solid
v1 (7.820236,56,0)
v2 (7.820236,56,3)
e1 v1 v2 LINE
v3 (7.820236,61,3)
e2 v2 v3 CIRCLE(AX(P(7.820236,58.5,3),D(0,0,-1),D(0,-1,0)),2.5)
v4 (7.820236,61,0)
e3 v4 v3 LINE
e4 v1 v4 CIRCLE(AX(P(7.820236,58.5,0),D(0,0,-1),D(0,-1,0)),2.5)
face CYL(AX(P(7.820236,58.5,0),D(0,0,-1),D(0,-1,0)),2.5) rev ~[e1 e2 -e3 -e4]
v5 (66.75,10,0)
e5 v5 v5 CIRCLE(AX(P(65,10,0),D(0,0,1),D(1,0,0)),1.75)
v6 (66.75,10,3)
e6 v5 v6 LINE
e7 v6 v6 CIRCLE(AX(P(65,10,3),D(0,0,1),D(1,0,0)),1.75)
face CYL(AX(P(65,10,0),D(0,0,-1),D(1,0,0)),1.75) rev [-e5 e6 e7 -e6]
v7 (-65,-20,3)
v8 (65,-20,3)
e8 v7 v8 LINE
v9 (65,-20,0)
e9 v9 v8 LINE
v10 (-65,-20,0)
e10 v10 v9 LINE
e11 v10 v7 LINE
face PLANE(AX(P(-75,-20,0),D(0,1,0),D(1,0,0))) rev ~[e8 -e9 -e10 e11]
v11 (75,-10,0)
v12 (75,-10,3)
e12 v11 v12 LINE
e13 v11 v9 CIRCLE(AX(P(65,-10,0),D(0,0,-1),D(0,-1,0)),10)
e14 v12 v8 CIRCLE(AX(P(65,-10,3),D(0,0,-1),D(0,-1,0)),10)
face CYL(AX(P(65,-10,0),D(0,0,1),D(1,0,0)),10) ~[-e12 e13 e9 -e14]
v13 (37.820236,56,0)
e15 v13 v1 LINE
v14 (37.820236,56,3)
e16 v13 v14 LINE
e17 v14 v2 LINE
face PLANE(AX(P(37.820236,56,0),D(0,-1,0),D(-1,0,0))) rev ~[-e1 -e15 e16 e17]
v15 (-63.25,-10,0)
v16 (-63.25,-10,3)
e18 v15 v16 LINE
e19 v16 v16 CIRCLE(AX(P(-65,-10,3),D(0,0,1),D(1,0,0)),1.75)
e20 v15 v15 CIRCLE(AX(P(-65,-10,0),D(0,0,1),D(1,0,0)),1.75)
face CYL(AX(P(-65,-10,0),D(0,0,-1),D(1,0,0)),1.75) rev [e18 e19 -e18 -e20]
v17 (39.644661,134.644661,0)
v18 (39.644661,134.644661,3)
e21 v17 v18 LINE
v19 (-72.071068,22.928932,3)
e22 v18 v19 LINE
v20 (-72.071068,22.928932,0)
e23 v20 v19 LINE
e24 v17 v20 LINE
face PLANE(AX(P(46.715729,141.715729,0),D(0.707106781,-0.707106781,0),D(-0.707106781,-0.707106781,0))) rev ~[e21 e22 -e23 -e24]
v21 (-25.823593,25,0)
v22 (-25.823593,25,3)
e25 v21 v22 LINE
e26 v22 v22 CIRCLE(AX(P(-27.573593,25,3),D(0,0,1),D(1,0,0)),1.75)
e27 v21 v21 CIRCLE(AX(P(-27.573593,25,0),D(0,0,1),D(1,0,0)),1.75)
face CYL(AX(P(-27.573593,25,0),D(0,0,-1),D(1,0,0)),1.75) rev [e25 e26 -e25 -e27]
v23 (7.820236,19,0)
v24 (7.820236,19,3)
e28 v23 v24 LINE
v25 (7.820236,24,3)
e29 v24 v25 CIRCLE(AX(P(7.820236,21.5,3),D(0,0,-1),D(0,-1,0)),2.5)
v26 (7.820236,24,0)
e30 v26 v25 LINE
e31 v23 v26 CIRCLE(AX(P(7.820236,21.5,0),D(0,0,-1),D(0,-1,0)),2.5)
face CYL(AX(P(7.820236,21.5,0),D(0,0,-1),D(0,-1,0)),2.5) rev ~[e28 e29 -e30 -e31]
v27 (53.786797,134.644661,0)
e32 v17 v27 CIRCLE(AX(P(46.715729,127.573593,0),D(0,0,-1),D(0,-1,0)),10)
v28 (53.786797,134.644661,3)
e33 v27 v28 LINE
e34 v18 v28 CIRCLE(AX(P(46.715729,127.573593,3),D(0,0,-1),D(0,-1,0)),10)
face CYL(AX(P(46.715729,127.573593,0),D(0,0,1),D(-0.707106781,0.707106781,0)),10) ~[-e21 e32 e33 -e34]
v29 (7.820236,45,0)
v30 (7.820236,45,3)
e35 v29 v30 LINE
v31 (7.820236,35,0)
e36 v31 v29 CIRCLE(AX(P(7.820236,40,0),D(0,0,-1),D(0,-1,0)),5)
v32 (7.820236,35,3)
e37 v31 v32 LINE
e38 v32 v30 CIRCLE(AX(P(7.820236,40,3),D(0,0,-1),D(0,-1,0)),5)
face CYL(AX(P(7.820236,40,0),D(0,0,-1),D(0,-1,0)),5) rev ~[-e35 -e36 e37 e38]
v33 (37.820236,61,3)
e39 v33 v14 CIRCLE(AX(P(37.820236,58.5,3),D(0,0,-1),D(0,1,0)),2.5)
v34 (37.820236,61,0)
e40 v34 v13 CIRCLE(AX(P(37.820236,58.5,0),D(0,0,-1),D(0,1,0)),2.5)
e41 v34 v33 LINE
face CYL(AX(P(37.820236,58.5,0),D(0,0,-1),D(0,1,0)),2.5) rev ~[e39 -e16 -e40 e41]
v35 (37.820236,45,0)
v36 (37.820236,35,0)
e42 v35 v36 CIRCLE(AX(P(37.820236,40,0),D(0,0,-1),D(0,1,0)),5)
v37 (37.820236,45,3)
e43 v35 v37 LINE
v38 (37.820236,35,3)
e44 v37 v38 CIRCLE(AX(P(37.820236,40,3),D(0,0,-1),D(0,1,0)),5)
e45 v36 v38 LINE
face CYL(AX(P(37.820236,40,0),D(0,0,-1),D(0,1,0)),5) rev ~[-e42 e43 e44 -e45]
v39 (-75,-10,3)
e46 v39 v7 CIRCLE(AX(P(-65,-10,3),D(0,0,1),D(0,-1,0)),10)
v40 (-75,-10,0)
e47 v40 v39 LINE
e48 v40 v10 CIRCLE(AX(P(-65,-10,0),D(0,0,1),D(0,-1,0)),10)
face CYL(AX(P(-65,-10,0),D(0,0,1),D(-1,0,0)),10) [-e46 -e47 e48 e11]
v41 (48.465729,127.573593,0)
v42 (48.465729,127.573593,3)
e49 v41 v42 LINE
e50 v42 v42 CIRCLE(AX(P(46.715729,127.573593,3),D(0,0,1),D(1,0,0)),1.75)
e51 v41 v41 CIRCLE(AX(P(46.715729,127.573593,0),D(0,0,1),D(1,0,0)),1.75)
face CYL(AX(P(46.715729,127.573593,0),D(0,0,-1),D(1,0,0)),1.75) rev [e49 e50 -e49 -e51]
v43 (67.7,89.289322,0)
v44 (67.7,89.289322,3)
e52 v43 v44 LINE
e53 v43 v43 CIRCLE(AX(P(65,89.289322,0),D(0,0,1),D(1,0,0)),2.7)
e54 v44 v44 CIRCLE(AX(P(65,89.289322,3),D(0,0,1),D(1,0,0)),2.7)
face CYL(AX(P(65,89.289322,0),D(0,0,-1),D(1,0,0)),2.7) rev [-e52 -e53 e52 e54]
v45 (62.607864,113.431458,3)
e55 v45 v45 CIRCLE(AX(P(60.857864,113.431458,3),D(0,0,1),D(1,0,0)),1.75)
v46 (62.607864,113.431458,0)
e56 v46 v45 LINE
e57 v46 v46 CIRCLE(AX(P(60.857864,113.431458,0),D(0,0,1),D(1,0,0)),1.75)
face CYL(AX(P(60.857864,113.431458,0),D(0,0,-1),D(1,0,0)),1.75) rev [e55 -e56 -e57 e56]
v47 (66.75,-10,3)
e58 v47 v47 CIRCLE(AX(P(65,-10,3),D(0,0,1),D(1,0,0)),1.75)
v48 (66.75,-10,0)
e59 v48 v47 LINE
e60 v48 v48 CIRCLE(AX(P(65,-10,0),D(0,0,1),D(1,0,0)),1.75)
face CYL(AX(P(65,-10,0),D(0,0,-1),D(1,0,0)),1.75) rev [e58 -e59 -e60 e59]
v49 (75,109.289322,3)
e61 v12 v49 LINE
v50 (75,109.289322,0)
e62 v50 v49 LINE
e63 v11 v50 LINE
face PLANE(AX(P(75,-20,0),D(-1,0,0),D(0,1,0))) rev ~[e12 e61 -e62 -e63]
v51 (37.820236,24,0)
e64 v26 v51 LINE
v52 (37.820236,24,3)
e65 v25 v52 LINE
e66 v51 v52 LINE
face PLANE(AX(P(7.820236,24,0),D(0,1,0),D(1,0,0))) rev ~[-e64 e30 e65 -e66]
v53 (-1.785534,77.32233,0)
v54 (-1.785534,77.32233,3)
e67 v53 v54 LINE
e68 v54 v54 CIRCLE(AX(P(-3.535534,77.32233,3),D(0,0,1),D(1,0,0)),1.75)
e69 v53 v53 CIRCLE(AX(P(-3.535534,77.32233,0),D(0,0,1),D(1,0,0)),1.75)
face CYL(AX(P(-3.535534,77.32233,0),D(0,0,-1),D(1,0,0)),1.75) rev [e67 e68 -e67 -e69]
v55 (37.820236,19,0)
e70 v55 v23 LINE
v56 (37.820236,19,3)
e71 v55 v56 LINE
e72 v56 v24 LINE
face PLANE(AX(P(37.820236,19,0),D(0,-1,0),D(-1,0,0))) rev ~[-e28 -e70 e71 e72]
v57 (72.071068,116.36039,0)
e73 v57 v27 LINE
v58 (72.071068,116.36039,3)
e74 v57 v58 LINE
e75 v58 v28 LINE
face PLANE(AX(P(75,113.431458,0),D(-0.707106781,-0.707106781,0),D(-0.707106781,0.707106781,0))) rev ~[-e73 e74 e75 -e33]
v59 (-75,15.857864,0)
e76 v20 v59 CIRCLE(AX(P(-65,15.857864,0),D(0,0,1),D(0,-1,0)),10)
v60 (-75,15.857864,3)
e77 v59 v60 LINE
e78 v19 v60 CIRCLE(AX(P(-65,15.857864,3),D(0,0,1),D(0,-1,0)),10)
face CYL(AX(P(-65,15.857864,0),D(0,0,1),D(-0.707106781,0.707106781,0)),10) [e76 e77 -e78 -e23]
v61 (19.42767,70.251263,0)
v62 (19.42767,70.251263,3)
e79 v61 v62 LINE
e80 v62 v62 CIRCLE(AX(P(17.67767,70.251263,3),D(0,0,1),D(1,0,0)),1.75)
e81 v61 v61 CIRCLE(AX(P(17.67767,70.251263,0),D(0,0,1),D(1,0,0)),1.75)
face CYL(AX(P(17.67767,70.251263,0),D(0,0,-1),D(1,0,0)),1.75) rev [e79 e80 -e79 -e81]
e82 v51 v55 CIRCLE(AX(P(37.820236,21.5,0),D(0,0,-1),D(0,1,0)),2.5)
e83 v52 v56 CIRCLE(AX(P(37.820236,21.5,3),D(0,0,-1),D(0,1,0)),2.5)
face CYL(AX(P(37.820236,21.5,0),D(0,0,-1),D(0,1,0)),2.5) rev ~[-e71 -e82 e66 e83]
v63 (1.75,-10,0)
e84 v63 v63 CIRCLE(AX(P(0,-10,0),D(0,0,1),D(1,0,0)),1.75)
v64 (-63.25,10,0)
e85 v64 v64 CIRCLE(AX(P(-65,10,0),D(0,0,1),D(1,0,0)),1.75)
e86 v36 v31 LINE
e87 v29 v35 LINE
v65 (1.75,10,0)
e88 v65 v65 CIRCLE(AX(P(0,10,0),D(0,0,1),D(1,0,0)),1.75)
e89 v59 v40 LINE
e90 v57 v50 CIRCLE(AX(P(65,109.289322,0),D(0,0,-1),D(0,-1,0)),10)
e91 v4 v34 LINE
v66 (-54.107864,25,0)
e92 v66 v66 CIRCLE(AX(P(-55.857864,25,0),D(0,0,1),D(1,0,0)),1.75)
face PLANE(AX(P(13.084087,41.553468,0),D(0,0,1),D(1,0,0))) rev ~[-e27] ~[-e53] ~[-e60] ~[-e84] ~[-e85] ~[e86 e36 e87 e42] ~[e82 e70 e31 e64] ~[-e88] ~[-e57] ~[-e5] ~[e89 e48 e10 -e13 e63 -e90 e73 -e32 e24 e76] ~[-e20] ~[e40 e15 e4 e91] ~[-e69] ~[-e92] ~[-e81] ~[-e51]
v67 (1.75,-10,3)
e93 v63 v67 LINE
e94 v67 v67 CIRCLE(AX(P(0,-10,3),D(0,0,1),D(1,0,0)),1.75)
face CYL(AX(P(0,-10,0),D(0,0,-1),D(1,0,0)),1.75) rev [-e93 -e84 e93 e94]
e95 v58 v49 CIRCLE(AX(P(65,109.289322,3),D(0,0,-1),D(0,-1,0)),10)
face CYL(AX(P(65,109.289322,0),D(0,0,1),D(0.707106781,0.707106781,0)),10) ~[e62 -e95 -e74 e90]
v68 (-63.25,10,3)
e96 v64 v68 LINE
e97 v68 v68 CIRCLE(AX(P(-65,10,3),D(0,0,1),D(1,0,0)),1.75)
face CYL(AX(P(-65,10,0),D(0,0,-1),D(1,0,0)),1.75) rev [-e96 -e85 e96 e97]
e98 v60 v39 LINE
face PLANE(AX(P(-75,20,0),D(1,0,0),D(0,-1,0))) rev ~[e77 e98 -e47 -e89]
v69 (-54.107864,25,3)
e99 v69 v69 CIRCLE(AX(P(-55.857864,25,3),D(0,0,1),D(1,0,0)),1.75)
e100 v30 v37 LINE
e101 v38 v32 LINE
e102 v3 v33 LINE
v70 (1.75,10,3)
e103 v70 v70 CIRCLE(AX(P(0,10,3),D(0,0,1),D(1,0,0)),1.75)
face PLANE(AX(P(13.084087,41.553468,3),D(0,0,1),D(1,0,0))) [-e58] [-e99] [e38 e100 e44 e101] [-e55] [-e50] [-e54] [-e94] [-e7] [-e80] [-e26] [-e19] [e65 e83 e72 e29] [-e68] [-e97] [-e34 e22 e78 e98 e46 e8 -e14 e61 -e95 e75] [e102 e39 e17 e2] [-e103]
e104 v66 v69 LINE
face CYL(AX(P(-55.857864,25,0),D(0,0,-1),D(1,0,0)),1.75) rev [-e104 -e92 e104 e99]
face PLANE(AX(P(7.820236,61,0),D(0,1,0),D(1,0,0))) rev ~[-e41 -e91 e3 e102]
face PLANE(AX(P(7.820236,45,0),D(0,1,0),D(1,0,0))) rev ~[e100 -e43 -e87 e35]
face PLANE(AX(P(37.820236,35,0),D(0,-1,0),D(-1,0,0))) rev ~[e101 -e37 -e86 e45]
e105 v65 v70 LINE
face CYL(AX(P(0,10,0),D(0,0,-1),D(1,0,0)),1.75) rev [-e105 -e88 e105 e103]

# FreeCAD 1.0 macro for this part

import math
import FreeCAD as App
import Part
import Sketcher

V = App.Vector
Q = App.Units.Quantity


def edges_at(feature, points):
    """Names of the edges that pass closest to the given points."""
    edges = feature.Shape.Edges
    near = lambda p: min(range(len(edges)), key=lambda i: edges[i].distToShape(Part.Vertex(*p))[0])
    return sorted({f"Edge{near(p) + 1}" for p in points})


def add_polygon(sketch, points):
    """Adds a closed chain of lines whose ends are joined by coincident constraints."""
    first, n = sketch.GeometryCount, len(points)
    for a, b in zip(points, points[1:] + points[:1]):
        sketch.addGeometry(Part.LineSegment(App.Vector(*a, 0), App.Vector(*b, 0)), False)
    for i in range(n):
        sketch.addConstraint(Sketcher.Constraint("Coincident", first + i, 2, first + (i + 1) % n, 1))

doc = App.newDocument("Part")
body = doc.addObject("PartDesign::Body", "Body")

# Sketch on XY plane
sketch1 = body.newObject("Sketcher::SketchObject", "Sketch")
sketch1.AttachmentSupport = (doc.getObject("XY_Plane"), [""])
sketch1.MapMode = "FlatFace"
add_polygon(sketch1, [(46.715729, 141.715729), (-75, 20), (-75, -20), (75, -20), (75, 113.431458)])  # lines 0-4
sketch1.addGeometry(Part.Circle(V(-65, -10, 0), V(0, 0, 1), 1.75), False)  # 5
sketch1.addGeometry(Part.Circle(V(-65, 10, 0), V(0, 0, 1), 1.75), False)  # 6
sketch1.addGeometry(Part.Circle(V(0, -10, 0), V(0, 0, 1), 1.75), False)  # 7
sketch1.addGeometry(Part.Circle(V(0, 10, 0), V(0, 0, 1), 1.75), False)  # 8
sketch1.addGeometry(Part.Circle(V(-55.857864, 25, 0), V(0, 0, 1), 1.75), False)  # 9
sketch1.addGeometry(Part.Circle(V(-27.573593, 25, 0), V(0, 0, 1), 1.75), False)  # 10
sketch1.addGeometry(Part.LineSegment(V(37.820236, 19, 0), V(7.820236, 19, 0)), False)  # 11
sketch1.addGeometry(Part.ArcOfCircle(Part.Circle(V(7.820236, 21.5, 0), V(0, 0, 1), 2.5), math.radians(90), math.radians(270)), False)  # 12
sketch1.addGeometry(Part.LineSegment(V(7.820236, 24, 0), V(37.820236, 24, 0)), False)  # 13
sketch1.addGeometry(Part.ArcOfCircle(Part.Circle(V(37.820236, 21.5, 0), V(0, 0, 1), 2.5), math.radians(-90), math.radians(90)), False)  # 14
sketch1.addGeometry(Part.Circle(V(65, -10, 0), V(0, 0, 1), 1.75), False)  # 15
sketch1.addGeometry(Part.Circle(V(65, 10, 0), V(0, 0, 1), 1.75), False)  # 16
sketch1.addGeometry(Part.LineSegment(V(37.820236, 35, 0), V(7.820236, 35, 0)), False)  # 17
sketch1.addGeometry(Part.ArcOfCircle(Part.Circle(V(7.820236, 40, 0), V(0, 0, 1), 5), math.radians(90), math.radians(270)), False)  # 18
sketch1.addGeometry(Part.LineSegment(V(7.820236, 45, 0), V(37.820236, 45, 0)), False)  # 19
sketch1.addGeometry(Part.ArcOfCircle(Part.Circle(V(37.820236, 40, 0), V(0, 0, 1), 5), math.radians(-90), math.radians(90)), False)  # 20
sketch1.addGeometry(Part.LineSegment(V(37.820236, 56, 0), V(7.820236, 56, 0)), False)  # 21
sketch1.addGeometry(Part.ArcOfCircle(Part.Circle(V(7.820236, 58.5, 0), V(0, 0, 1), 2.5), math.radians(90), math.radians(270)), False)  # 22
sketch1.addGeometry(Part.LineSegment(V(7.820236, 61, 0), V(37.820236, 61, 0)), False)  # 23
sketch1.addGeometry(Part.ArcOfCircle(Part.Circle(V(37.820236, 58.5, 0), V(0, 0, 1), 2.5), math.radians(-90), math.radians(90)), False)  # 24
sketch1.addGeometry(Part.Circle(V(-3.535534, 77.32233, 0), V(0, 0, 1), 1.75), False)  # 25
sketch1.addGeometry(Part.Circle(V(17.67767, 70.251263, 0), V(0, 0, 1), 1.75), False)  # 26
sketch1.addGeometry(Part.Circle(V(65, 89.289322, 0), V(0, 0, 1), 2.7), False)  # 27
sketch1.addGeometry(Part.Circle(V(46.715729, 127.573593, 0), V(0, 0, 1), 1.75), False)  # 28
sketch1.addGeometry(Part.Circle(V(60.857864, 113.431458, 0), V(0, 0, 1), 1.75), False)  # 29
sketch1.addConstraint([
    Sketcher.Constraint("Tangent", 11, 2, 12, 2),
    Sketcher.Constraint("Tangent", 12, 1, 13, 1),
    Sketcher.Constraint("Tangent", 13, 2, 14, 2),
    Sketcher.Constraint("Tangent", 14, 1, 11, 1),
    Sketcher.Constraint("Tangent", 17, 2, 18, 2),
    Sketcher.Constraint("Tangent", 18, 1, 19, 1),
    Sketcher.Constraint("Tangent", 19, 2, 20, 2),
    Sketcher.Constraint("Tangent", 20, 1, 17, 1),
    Sketcher.Constraint("Tangent", 21, 2, 22, 2),
    Sketcher.Constraint("Tangent", 22, 1, 23, 1),
    Sketcher.Constraint("Tangent", 23, 2, 24, 2),
    Sketcher.Constraint("Tangent", 24, 1, 21, 1),
    Sketcher.Constraint("Vertical", 1),
    Sketcher.Constraint("Horizontal", 2),
    Sketcher.Constraint("Vertical", 3),
    Sketcher.Constraint("Horizontal", 11),
    Sketcher.Constraint("Horizontal", 13),
    Sketcher.Constraint("Horizontal", 17),
    Sketcher.Constraint("Horizontal", 19),
    Sketcher.Constraint("Horizontal", 21),
    Sketcher.Constraint("Horizontal", 23),
    Sketcher.Constraint("Equal", 5, 6),
    Sketcher.Constraint("Equal", 6, 7),
    Sketcher.Constraint("Equal", 7, 8),
    Sketcher.Constraint("Equal", 8, 9),
    Sketcher.Constraint("Equal", 9, 10),
    Sketcher.Constraint("Equal", 10, 15),
    Sketcher.Constraint("Equal", 15, 16),
    Sketcher.Constraint("Equal", 14, 22),
    Sketcher.Constraint("Equal", 16, 25),
    Sketcher.Constraint("Equal", 25, 26),
    Sketcher.Constraint("Equal", 26, 28),
    Sketcher.Constraint("Equal", 28, 29),
    Sketcher.Constraint("Symmetric", 7, 3, 8, 3, -1, 1),
    Sketcher.Constraint("Symmetric", 6, 3, 15, 3, -1, 1),
    Sketcher.Constraint("Symmetric", 5, 3, 16, 3, -1, 1),
    Sketcher.Constraint("Symmetric", 0, 2, 2, 2, -1, 1),
    Sketcher.Constraint("Symmetric", 5, 3, 15, 3, -2),
    Sketcher.Constraint("PointOnObject", 7, 3, -2),
    Sketcher.Constraint("Perpendicular", 0, 4),
    Sketcher.Constraint("Horizontal", 5, 3, 7, 3),
    Sketcher.Constraint("Horizontal", 9, 3, 10, 3),
    Sketcher.Constraint("Horizontal", 29, 3, 3, 2),
    Sketcher.Constraint("Vertical", 12, 3, 18, 3),
    Sketcher.Constraint("Vertical", 14, 3, 20, 3),
    Sketcher.Constraint("Vertical", 18, 3, 22, 3),
    Sketcher.Constraint("Vertical", 20, 3, 24, 3),
    Sketcher.Constraint("Vertical", 16, 3, 27, 3),
    Sketcher.Constraint("Vertical", 28, 3, 4, 2),
    Sketcher.Constraint("Radius", 18, 5.0),
    Sketcher.Constraint("Diameter", 5, 3.5),
    Sketcher.Constraint("Diameter", 27, 5.4),
    Sketcher.Constraint("Radius", 12, 2.5),
    Sketcher.Constraint("DistanceX", 2, 1, 2, 2, 150.0),
    Sketcher.Constraint("DistanceX", 11, 2, 11, 1, 30.0),
    Sketcher.Constraint("DistanceY", 1, 2, 1, 1, 40.0),
    Sketcher.Constraint("Angle", 0, Q("-135 deg")),
    Sketcher.Constraint("Distance", 4, 40.0),
    Sketcher.Constraint("DistanceX", 5, 3, -1, 1, 65.0),
    Sketcher.Constraint("DistanceY", 5, 3, -1, 1, 10.0),
    Sketcher.Constraint("DistanceY", -1, 1, 9, 3, 25.0),
    Sketcher.Constraint("DistanceY", -1, 1, 18, 3, 40.0),
    Sketcher.Constraint("DistanceY", -1, 1, 11, 2, 19.0),
    Sketcher.Constraint("DistanceY", -1, 1, 21, 2, 56.0),
    Sketcher.Constraint("DistanceX", 9, 3, 12, 3, 63.678101),
    Sketcher.Constraint("DistanceX", 25, 3, 29, 3, 64.393398),
    Sketcher.Constraint("DistanceY", -1, 1, 25, 3, 77.32233),
    Sketcher.Constraint("DistanceX", -1, 1, 26, 3, 17.67767),
    Sketcher.Constraint("DistanceY", -1, 1, 27, 3, 89.289322),
    Sketcher.Constraint("DistanceX", 9, 3, 10, 3, 28.284271),
    Sketcher.Constraint("DistanceX", 25, 3, 22, 3, 11.35577),
    Sketcher.Constraint("DistanceY", 26, 3, 27, 3, 19.038059),
    Sketcher.Constraint("DistanceY", 27, 3, 28, 3, 38.284271),
    Sketcher.Constraint("DistanceX", 9, 3, -1, 1, 55.857864),
])
pad1 = body.newObject("PartDesign::Pad", "Pad")
pad1.Profile = sketch1
pad1.Length = 3
doc.recompute()

fillet = body.newObject("PartDesign::Fillet", "Fillet")
fillet.Base = (pad1, edges_at(pad1, [
    (75, -20, 1.5),
    (-75, -20, 1.5),
    (-75, 20, 1.5),
    (46.716, 141.716, 1.5),
    (75, 113.431, 1.5),
]))
fillet.Radius = 10

doc.recompute()
